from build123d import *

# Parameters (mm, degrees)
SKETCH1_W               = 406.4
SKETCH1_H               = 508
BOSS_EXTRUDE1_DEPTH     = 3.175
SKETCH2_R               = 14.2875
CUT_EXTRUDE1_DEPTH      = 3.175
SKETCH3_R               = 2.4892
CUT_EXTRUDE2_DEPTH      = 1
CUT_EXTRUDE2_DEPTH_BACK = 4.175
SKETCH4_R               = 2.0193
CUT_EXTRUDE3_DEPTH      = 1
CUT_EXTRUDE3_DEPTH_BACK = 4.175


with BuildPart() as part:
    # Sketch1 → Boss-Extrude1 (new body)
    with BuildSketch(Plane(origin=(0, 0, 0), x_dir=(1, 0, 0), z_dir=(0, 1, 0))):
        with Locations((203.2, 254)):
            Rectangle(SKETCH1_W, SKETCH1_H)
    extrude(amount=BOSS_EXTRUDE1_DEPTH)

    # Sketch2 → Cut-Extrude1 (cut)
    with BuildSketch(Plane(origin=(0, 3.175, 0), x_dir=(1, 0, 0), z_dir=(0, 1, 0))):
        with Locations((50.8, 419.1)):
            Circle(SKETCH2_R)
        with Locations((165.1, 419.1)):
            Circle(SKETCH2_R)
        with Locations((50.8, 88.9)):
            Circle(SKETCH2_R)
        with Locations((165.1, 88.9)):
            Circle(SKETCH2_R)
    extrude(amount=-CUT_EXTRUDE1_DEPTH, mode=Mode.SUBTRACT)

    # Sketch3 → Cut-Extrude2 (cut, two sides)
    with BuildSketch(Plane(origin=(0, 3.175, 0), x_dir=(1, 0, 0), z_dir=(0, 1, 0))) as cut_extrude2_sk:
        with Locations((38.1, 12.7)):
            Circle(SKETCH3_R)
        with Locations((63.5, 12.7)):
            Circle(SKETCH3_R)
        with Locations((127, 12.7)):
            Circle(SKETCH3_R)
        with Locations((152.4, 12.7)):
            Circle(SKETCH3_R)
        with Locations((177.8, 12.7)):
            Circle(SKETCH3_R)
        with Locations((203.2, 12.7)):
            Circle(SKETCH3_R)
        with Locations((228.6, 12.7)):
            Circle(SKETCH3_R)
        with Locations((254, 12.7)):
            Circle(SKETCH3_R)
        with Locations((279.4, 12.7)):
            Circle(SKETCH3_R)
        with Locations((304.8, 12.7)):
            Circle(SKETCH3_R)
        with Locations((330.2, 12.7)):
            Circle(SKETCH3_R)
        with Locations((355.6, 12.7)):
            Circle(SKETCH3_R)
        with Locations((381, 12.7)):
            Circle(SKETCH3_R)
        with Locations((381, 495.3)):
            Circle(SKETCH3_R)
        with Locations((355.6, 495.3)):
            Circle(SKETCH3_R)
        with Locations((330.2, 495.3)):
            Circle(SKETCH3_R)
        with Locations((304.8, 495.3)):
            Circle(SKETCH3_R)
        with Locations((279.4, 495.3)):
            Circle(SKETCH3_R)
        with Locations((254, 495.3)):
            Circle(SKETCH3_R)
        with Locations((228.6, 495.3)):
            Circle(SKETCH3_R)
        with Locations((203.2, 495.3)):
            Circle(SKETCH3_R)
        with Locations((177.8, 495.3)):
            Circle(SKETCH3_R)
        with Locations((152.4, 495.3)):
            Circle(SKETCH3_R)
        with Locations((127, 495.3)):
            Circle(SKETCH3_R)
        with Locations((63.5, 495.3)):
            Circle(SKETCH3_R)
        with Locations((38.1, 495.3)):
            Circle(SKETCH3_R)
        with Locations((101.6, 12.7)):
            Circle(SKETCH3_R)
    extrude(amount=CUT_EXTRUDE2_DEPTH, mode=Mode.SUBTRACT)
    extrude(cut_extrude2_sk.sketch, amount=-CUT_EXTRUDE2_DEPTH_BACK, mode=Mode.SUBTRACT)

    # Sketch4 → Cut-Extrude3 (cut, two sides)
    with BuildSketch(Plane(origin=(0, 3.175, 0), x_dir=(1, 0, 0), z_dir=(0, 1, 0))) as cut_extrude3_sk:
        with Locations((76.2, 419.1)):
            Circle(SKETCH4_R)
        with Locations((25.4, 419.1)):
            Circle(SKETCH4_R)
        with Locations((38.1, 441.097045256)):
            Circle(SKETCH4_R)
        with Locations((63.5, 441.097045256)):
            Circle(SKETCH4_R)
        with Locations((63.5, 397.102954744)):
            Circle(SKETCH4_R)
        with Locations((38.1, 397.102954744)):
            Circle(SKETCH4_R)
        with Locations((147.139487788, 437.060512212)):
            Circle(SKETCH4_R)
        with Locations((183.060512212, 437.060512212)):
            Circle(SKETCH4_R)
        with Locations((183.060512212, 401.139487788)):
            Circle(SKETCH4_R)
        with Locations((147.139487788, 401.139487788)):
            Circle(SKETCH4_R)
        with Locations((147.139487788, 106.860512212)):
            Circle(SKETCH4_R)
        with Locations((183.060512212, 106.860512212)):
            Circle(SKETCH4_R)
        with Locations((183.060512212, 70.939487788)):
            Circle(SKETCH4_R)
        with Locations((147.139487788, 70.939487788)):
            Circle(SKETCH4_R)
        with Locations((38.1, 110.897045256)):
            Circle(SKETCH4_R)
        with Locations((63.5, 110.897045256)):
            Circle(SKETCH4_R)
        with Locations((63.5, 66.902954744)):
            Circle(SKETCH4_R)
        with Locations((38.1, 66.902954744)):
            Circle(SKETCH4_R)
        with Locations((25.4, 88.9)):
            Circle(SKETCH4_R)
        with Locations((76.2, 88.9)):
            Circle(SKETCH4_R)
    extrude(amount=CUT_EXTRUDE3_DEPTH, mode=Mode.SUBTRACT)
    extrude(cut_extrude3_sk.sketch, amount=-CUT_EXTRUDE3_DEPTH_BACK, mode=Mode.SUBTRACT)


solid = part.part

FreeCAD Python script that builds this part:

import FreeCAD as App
import Part
import Sketcher

V = App.Vector
Q = App.Units.Quantity


def add_polygon(sketch, points):
    """Adds a closed chain of lines whose ends are joined by coincident constraints."""
    first, n = sketch.GeometryCount, len(points)
    for a, b in zip(points, points[1:] + points[:1]):
        sketch.addGeometry(Part.LineSegment(App.Vector(*a, 0), App.Vector(*b, 0)), False)
    for i in range(n):
        sketch.addConstraint(Sketcher.Constraint("Coincident", first + i, 2, first + (i + 1) % n, 1))

doc = App.newDocument("Part")
params = doc.addObject("Spreadsheet::Sheet", "Params")
for row, (alias, value) in enumerate([
    ("sketch1_width", "16 in"),
    ("sketch1_height", "20 in"),
    ("pad1_length", "0.125 in"),
    ("sketch2_diameter", "1.125 in"),
    ("pocket1_length", "0.125 in"),
    ("sketch3_diameter", "0.196 in"),
    ("sketch4_diameter", "0.159 in"),
], start=1):
    params.set(f"A{row}", alias)
    params.set(f"B{row}", "=" + value)
    params.setAlias(f"B{row}", alias)

body = doc.addObject("PartDesign::Body", "Body")

# Sketch on XZ plane
sketch1 = body.newObject("Sketcher::SketchObject", "Sketch")
sketch1.AttachmentSupport = (doc.getObject("XZ_Plane"), [""])
sketch1.MapMode = "FlatFace"
add_polygon(sketch1, [(0, -508), (0, 0), (406.4, 0), (406.4, -508)])  # lines 0-3
sketch1.addConstraint([
    Sketcher.Constraint("Vertical", 0),
    Sketcher.Constraint("Horizontal", 1),
    Sketcher.Constraint("Vertical", 2),
    Sketcher.Constraint("Horizontal", 3),
    Sketcher.Constraint("Coincident", 0, 2, -1, 1),
    Sketcher.Constraint("DistanceX", 1, 1, 1, 2, Q("16 in")),
    Sketcher.Constraint("DistanceY", 0, 1, 0, 2, Q("20 in")),
])
sketch1.setExpression("Constraints[9]", "Params.sketch1_width")
sketch1.setExpression("Constraints[10]", "Params.sketch1_height")
pad1 = body.newObject("PartDesign::Pad", "Pad")
pad1.Profile = sketch1
pad1.setExpression("Length", "Params.pad1_length")
pad1.Reversed = True

# Sketch on XZ plane
sketch2 = body.newObject("Sketcher::SketchObject", "Sketch001")
sketch2.AttachmentSupport = (doc.getObject("XZ_Plane"), [""])
sketch2.MapMode = "FlatFace"
sketch2.AttachmentOffset = App.Placement(V(0, 0, -0.125 * 25.4), App.Rotation())
sketch2.addGeometry([
    Part.Circle(V(50.8, -419.1, 0), V(0, 0, 1), 14.2875),
    Part.Circle(V(165.1, -419.1, 0), V(0, 0, 1), 14.2875),
    Part.Circle(V(50.8, -88.9, 0), V(0, 0, 1), 14.2875),
    Part.Circle(V(165.1, -88.9, 0), V(0, 0, 1), 14.2875),
], False)
sketch2.addConstraint([
    Sketcher.Constraint("Equal", 0, 1),
    Sketcher.Constraint("Equal", 1, 2),
    Sketcher.Constraint("Equal", 2, 3),
    Sketcher.Constraint("Horizontal", 0, 3, 1, 3),
    Sketcher.Constraint("Horizontal", 2, 3, 3, 3),
    Sketcher.Constraint("Vertical", 0, 3, 2, 3),
    Sketcher.Constraint("Vertical", 1, 3, 3, 3),
    Sketcher.Constraint("Diameter", 0, Q("1.125 in")),
    Sketcher.Constraint("DistanceX", -1, 1, 0, 3, Q("2 in")),
    Sketcher.Constraint("DistanceY", 0, 3, 2, 3, Q("13 in")),
    Sketcher.Constraint("DistanceY", 0, 3, -1, 1, Q("16.5 in")),
    Sketcher.Constraint("DistanceX", -1, 1, 1, 3, Q("6.5 in")),
])
sketch2.setExpression("Constraints[7]", "Params.sketch2_diameter")
pocket1 = body.newObject("PartDesign::Pocket", "Pocket")
pocket1.Profile = sketch2
pocket1.setExpression("Length", "Params.pocket1_length")
pocket1.Reversed = True

# Sketch on XZ plane
sketch3 = body.newObject("Sketcher::SketchObject", "Sketch002")
sketch3.AttachmentSupport = (doc.getObject("XZ_Plane"), [""])
sketch3.MapMode = "FlatFace"
sketch3.AttachmentOffset = App.Placement(V(0, 0, -0.125 * 25.4), App.Rotation())
sketch3.addGeometry([
    Part.Circle(V(38.1, -12.7, 0), V(0, 0, 1), 2.4892),  # 0
    Part.Circle(V(63.5, -12.7, 0), V(0, 0, 1), 2.4892),  # 1
    Part.Circle(V(127, -12.7, 0), V(0, 0, 1), 2.4892),  # 2
    Part.Circle(V(152.4, -12.7, 0), V(0, 0, 1), 2.4892),  # 3
    Part.Circle(V(177.8, -12.7, 0), V(0, 0, 1), 2.4892),  # 4
    Part.Circle(V(203.2, -12.7, 0), V(0, 0, 1), 2.4892),  # 5
    Part.Circle(V(228.6, -12.7, 0), V(0, 0, 1), 2.4892),  # 6
    Part.Circle(V(254, -12.7, 0), V(0, 0, 1), 2.4892),  # 7
    Part.Circle(V(279.4, -12.7, 0), V(0, 0, 1), 2.4892),  # 8
    Part.Circle(V(304.8, -12.7, 0), V(0, 0, 1), 2.4892),  # 9
    Part.Circle(V(330.2, -12.7, 0), V(0, 0, 1), 2.4892),  # 10
    Part.Circle(V(355.6, -12.7, 0), V(0, 0, 1), 2.4892),  # 11
    Part.Circle(V(381, -12.7, 0), V(0, 0, 1), 2.4892),  # 12
    Part.Circle(V(381, -495.3, 0), V(0, 0, 1), 2.4892),  # 13
    Part.Circle(V(355.6, -495.3, 0), V(0, 0, 1), 2.4892),  # 14
    Part.Circle(V(330.2, -495.3, 0), V(0, 0, 1), 2.4892),  # 15
    Part.Circle(V(304.8, -495.3, 0), V(0, 0, 1), 2.4892),  # 16
    Part.Circle(V(279.4, -495.3, 0), V(0, 0, 1), 2.4892),  # 17
    Part.Circle(V(254, -495.3, 0), V(0, 0, 1), 2.4892),  # 18
    Part.Circle(V(228.6, -495.3, 0), V(0, 0, 1), 2.4892),  # 19
    Part.Circle(V(203.2, -495.3, 0), V(0, 0, 1), 2.4892),  # 20
    Part.Circle(V(177.8, -495.3, 0), V(0, 0, 1), 2.4892),  # 21
    Part.Circle(V(152.4, -495.3, 0), V(0, 0, 1), 2.4892),  # 22
    Part.Circle(V(127, -495.3, 0), V(0, 0, 1), 2.4892),  # 23
    Part.Circle(V(63.5, -495.3, 0), V(0, 0, 1), 2.4892),  # 24
    Part.Circle(V(38.1, -495.3, 0), V(0, 0, 1), 2.4892),  # 25
    Part.Circle(V(101.6, -12.7, 0), V(0, 0, 1), 2.4892),  # 26
], False)
sketch3.addConstraint([
    Sketcher.Constraint("Equal", 0, 1),
    Sketcher.Constraint("Equal", 1, 2),
    Sketcher.Constraint("Equal", 2, 3),
    Sketcher.Constraint("Equal", 3, 4),
    Sketcher.Constraint("Equal", 4, 5),
    Sketcher.Constraint("Equal", 5, 6),
    Sketcher.Constraint("Equal", 6, 7),
    Sketcher.Constraint("Equal", 7, 8),
    Sketcher.Constraint("Equal", 8, 9),
    Sketcher.Constraint("Equal", 9, 10),
    Sketcher.Constraint("Equal", 10, 11),
    Sketcher.Constraint("Equal", 11, 12),
    Sketcher.Constraint("Equal", 12, 13),
    Sketcher.Constraint("Equal", 13, 14),
    Sketcher.Constraint("Equal", 14, 15),
    Sketcher.Constraint("Equal", 15, 16),
    Sketcher.Constraint("Equal", 16, 17),
    Sketcher.Constraint("Equal", 17, 18),
    Sketcher.Constraint("Equal", 18, 19),
    Sketcher.Constraint("Equal", 19, 20),
    Sketcher.Constraint("Equal", 20, 21),
    Sketcher.Constraint("Equal", 21, 22),
    Sketcher.Constraint("Equal", 22, 23),
    Sketcher.Constraint("Equal", 23, 24),
    Sketcher.Constraint("Equal", 24, 25),
    Sketcher.Constraint("Equal", 25, 26),
    Sketcher.Constraint("Horizontal", 0, 3, 1, 3),
    Sketcher.Constraint("Horizontal", 1, 3, 2, 3),
    Sketcher.Constraint("Horizontal", 2, 3, 3, 3),
    Sketcher.Constraint("Horizontal", 3, 3, 4, 3),
    Sketcher.Constraint("Horizontal", 4, 3, 5, 3),
    Sketcher.Constraint("Horizontal", 5, 3, 6, 3),
    Sketcher.Constraint("Horizontal", 6, 3, 7, 3),
    Sketcher.Constraint("Horizontal", 7, 3, 8, 3),
    Sketcher.Constraint("Horizontal", 8, 3, 9, 3),
    Sketcher.Constraint("Horizontal", 9, 3, 10, 3),
    Sketcher.Constraint("Horizontal", 10, 3, 11, 3),
    Sketcher.Constraint("Horizontal", 11, 3, 12, 3),
    Sketcher.Constraint("Horizontal", 13, 3, 14, 3),
    Sketcher.Constraint("Horizontal", 14, 3, 15, 3),
    Sketcher.Constraint("Horizontal", 15, 3, 16, 3),
    Sketcher.Constraint("Horizontal", 16, 3, 17, 3),
    Sketcher.Constraint("Horizontal", 17, 3, 18, 3),
    Sketcher.Constraint("Horizontal", 18, 3, 19, 3),
    Sketcher.Constraint("Horizontal", 19, 3, 20, 3),
    Sketcher.Constraint("Horizontal", 20, 3, 21, 3),
    Sketcher.Constraint("Horizontal", 21, 3, 22, 3),
    Sketcher.Constraint("Horizontal", 22, 3, 23, 3),
    Sketcher.Constraint("Horizontal", 23, 3, 24, 3),
    Sketcher.Constraint("Horizontal", 24, 3, 25, 3),
    Sketcher.Constraint("Horizontal", 12, 3, 26, 3),
    Sketcher.Constraint("Vertical", 12, 3, 13, 3),
    Sketcher.Constraint("Vertical", 11, 3, 14, 3),
    Sketcher.Constraint("Vertical", 10, 3, 15, 3),
    Sketcher.Constraint("Vertical", 9, 3, 16, 3),
    Sketcher.Constraint("Vertical", 8, 3, 17, 3),
    Sketcher.Constraint("Vertical", 7, 3, 18, 3),
    Sketcher.Constraint("Vertical", 6, 3, 19, 3),
    Sketcher.Constraint("Vertical", 5, 3, 20, 3),
    Sketcher.Constraint("Vertical", 4, 3, 21, 3),
    Sketcher.Constraint("Vertical", 3, 3, 22, 3),
    Sketcher.Constraint("Vertical", 2, 3, 23, 3),
    Sketcher.Constraint("Vertical", 1, 3, 24, 3),
    Sketcher.Constraint("Vertical", 0, 3, 25, 3),
    Sketcher.Constraint("Diameter", 0, Q("0.196 in")),
    Sketcher.Constraint("DistanceX", -1, 1, 2, 3, Q("5 in")),
    Sketcher.Constraint("DistanceX", -1, 1, 3, 3, Q("6 in")),
    Sketcher.Constraint("DistanceX", -1, 1, 4, 3, Q("7 in")),
    Sketcher.Constraint("DistanceX", -1, 1, 5, 3, Q("8 in")),
    Sketcher.Constraint("DistanceX", -1, 1, 6, 3, Q("9 in")),
    Sketcher.Constraint("DistanceX", -1, 1, 7, 3, Q("10 in")),
    Sketcher.Constraint("DistanceX", -1, 1, 8, 3, Q("11 in")),
    Sketcher.Constraint("DistanceX", -1, 1, 9, 3, Q("12 in")),
    Sketcher.Constraint("DistanceX", -1, 1, 10, 3, Q("13 in")),
    Sketcher.Constraint("DistanceX", -1, 1, 11, 3, Q("14 in")),
    Sketcher.Constraint("DistanceX", -1, 1, 12, 3, Q("15 in")),
    Sketcher.Constraint("DistanceX", -1, 1, 26, 3, Q("4 in")),
    Sketcher.Constraint("DistanceX", 0, 3, 1, 3, Q("1 in")),
    Sketcher.Constraint("DistanceY", 13, 3, 12, 3, Q("19 in")),
    Sketcher.Constraint("DistanceX", -1, 1, 0, 3, Q("1.5 in")),
    Sketcher.Constraint("DistanceY", 0, 3, -1, 1, Q("0.5 in")),
])
sketch3.setExpression("Constraints[64]", "Params.sketch3_diameter")
pocket2 = body.newObject("PartDesign::Pocket", "Pocket001")
pocket2.Profile = sketch3
pocket2.Type = "ThroughAll"
pocket2.Midplane = True

# Sketch on XZ plane
sketch4 = body.newObject("Sketcher::SketchObject", "Sketch003")
sketch4.AttachmentSupport = (doc.getObject("XZ_Plane"), [""])
sketch4.MapMode = "FlatFace"
sketch4.AttachmentOffset = App.Placement(V(0, 0, -0.125 * 25.4), App.Rotation())
sketch4.addGeometry([
    Part.Circle(V(76.2, -419.1, 0), V(0, 0, 1), 2.0193),  # 0
    Part.Circle(V(25.4, -419.1, 0), V(0, 0, 1), 2.0193),  # 1
    Part.Circle(V(38.1, -441.097045, 0), V(0, 0, 1), 2.0193),  # 2
    Part.Circle(V(63.5, -441.097045, 0), V(0, 0, 1), 2.0193),  # 3
    Part.Circle(V(63.5, -397.102955, 0), V(0, 0, 1), 2.0193),  # 4
    Part.Circle(V(38.1, -397.102955, 0), V(0, 0, 1), 2.0193),  # 5
    Part.Circle(V(147.139488, -437.060512, 0), V(0, 0, 1), 2.0193),  # 6
    Part.Circle(V(183.060512, -437.060512, 0), V(0, 0, 1), 2.0193),  # 7
    Part.Circle(V(183.060512, -401.139488, 0), V(0, 0, 1), 2.0193),  # 8
    Part.Circle(V(147.139488, -401.139488, 0), V(0, 0, 1), 2.0193),  # 9
    Part.Circle(V(147.139488, -106.860512, 0), V(0, 0, 1), 2.0193),  # 10
    Part.Circle(V(183.060512, -106.860512, 0), V(0, 0, 1), 2.0193),  # 11
    Part.Circle(V(183.060512, -70.939488, 0), V(0, 0, 1), 2.0193),  # 12
    Part.Circle(V(147.139488, -70.939488, 0), V(0, 0, 1), 2.0193),  # 13
    Part.Circle(V(38.1, -110.897045, 0), V(0, 0, 1), 2.0193),  # 14
    Part.Circle(V(63.5, -110.897045, 0), V(0, 0, 1), 2.0193),  # 15
    Part.Circle(V(63.5, -66.902955, 0), V(0, 0, 1), 2.0193),  # 16
    Part.Circle(V(38.1, -66.902955, 0), V(0, 0, 1), 2.0193),  # 17
    Part.Circle(V(25.4, -88.9, 0), V(0, 0, 1), 2.0193),  # 18
    Part.Circle(V(76.2, -88.9, 0), V(0, 0, 1), 2.0193),  # 19
], False)
sketch4.addConstraint([
    Sketcher.Constraint("Equal", 0, 1),
    Sketcher.Constraint("Equal", 1, 2),
    Sketcher.Constraint("Equal", 2, 3),
    Sketcher.Constraint("Equal", 3, 4),
    Sketcher.Constraint("Equal", 4, 5),
    Sketcher.Constraint("Equal", 5, 6),
    Sketcher.Constraint("Equal", 6, 7),
    Sketcher.Constraint("Equal", 7, 8),
    Sketcher.Constraint("Equal", 8, 9),
    Sketcher.Constraint("Equal", 9, 10),
    Sketcher.Constraint("Equal", 10, 11),
    Sketcher.Constraint("Equal", 11, 12),
    Sketcher.Constraint("Equal", 12, 13),
    Sketcher.Constraint("Equal", 13, 14),
    Sketcher.Constraint("Equal", 14, 15),
    Sketcher.Constraint("Equal", 15, 16),
    Sketcher.Constraint("Equal", 16, 17),
    Sketcher.Constraint("Equal", 17, 18),
    Sketcher.Constraint("Equal", 18, 19),
    Sketcher.Constraint("Horizontal", 0, 3, 1, 3),
    Sketcher.Constraint("Horizontal", 2, 3, 3, 3),
    Sketcher.Constraint("Horizontal", 4, 3, 5, 3),
    Sketcher.Constraint("Horizontal", 6, 3, 7, 3),
    Sketcher.Constraint("Horizontal", 8, 3, 9, 3),
    Sketcher.Constraint("Horizontal", 10, 3, 11, 3),
    Sketcher.Constraint("Horizontal", 12, 3, 13, 3),
    Sketcher.Constraint("Horizontal", 14, 3, 15, 3),
    Sketcher.Constraint("Horizontal", 16, 3, 17, 3),
    Sketcher.Constraint("Horizontal", 18, 3, 19, 3),
    Sketcher.Constraint("Vertical", 3, 3, 4, 3),
    Sketcher.Constraint("Vertical", 2, 3, 5, 3),
    Sketcher.Constraint("Vertical", 7, 3, 8, 3),
    Sketcher.Constraint("Vertical", 6, 3, 9, 3),
    Sketcher.Constraint("Vertical", 9, 3, 10, 3),
    Sketcher.Constraint("Vertical", 8, 3, 11, 3),
    Sketcher.Constraint("Vertical", 11, 3, 12, 3),
    Sketcher.Constraint("Vertical", 10, 3, 13, 3),
    Sketcher.Constraint("Vertical", 5, 3, 14, 3),
    Sketcher.Constraint("Vertical", 4, 3, 15, 3),
    Sketcher.Constraint("Vertical", 15, 3, 16, 3),
    Sketcher.Constraint("Vertical", 14, 3, 17, 3),
    Sketcher.Constraint("Vertical", 1, 3, 18, 3),
    Sketcher.Constraint("Vertical", 0, 3, 19, 3),
    Sketcher.Constraint("Diameter", 0, Q("0.159 in")),
    Sketcher.Constraint("DistanceX", -1, 1, 0, 3, Q("3 in")),
    Sketcher.Constraint("DistanceX", -1, 1, 1, 3, Q("1 in")),
    Sketcher.Constraint("DistanceX", 2, 3, 3, 3, Q("1 in")),
    Sketcher.Constraint("DistanceY", 8, 3, 12, 3, Q("13 in")),
    Sketcher.Constraint("DistanceY", 0, 3, -1, 1, Q("16.5 in")),
    Sketcher.Constraint("DistanceX", -1, 1, 2, 3, Q("1.5 in")),
    Sketcher.Constraint("DistanceY", 18, 3, -1, 1, Q("3.5 in")),
    Sketcher.Constraint("DistanceY", 3, 3, 4, 3, Q("43.994091 mm")),
    Sketcher.Constraint("DistanceY", 5, 3, 14, 3, Q("286.205909 mm")),
    Sketcher.Constraint("DistanceY", 15, 3, 16, 3, Q("43.994091 mm")),
    Sketcher.Constraint("DistanceY", 2, 3, -1, 1, Q("441.097045 mm")),
    Sketcher.Constraint("DistanceX", -1, 1, 6, 3, Q("147.139488 mm")),
    Sketcher.Constraint("DistanceY", 6, 3, -1, 1, Q("437.060512 mm")),
    Sketcher.Constraint("DistanceX", -1, 1, 7, 3, Q("183.060512 mm")),
    Sketcher.Constraint("DistanceY", 8, 3, -1, 1, Q("401.139488 mm")),
    Sketcher.Constraint("DistanceY", 10, 3, -1, 1, Q("106.860512 mm")),
])
sketch4.setExpression("Constraints[43]", "Params.sketch4_diameter")
pocket3 = body.newObject("PartDesign::Pocket", "Pocket002")
pocket3.Profile = sketch4
pocket3.Type = "ThroughAll"
pocket3.Midplane = True

doc.recompute()
